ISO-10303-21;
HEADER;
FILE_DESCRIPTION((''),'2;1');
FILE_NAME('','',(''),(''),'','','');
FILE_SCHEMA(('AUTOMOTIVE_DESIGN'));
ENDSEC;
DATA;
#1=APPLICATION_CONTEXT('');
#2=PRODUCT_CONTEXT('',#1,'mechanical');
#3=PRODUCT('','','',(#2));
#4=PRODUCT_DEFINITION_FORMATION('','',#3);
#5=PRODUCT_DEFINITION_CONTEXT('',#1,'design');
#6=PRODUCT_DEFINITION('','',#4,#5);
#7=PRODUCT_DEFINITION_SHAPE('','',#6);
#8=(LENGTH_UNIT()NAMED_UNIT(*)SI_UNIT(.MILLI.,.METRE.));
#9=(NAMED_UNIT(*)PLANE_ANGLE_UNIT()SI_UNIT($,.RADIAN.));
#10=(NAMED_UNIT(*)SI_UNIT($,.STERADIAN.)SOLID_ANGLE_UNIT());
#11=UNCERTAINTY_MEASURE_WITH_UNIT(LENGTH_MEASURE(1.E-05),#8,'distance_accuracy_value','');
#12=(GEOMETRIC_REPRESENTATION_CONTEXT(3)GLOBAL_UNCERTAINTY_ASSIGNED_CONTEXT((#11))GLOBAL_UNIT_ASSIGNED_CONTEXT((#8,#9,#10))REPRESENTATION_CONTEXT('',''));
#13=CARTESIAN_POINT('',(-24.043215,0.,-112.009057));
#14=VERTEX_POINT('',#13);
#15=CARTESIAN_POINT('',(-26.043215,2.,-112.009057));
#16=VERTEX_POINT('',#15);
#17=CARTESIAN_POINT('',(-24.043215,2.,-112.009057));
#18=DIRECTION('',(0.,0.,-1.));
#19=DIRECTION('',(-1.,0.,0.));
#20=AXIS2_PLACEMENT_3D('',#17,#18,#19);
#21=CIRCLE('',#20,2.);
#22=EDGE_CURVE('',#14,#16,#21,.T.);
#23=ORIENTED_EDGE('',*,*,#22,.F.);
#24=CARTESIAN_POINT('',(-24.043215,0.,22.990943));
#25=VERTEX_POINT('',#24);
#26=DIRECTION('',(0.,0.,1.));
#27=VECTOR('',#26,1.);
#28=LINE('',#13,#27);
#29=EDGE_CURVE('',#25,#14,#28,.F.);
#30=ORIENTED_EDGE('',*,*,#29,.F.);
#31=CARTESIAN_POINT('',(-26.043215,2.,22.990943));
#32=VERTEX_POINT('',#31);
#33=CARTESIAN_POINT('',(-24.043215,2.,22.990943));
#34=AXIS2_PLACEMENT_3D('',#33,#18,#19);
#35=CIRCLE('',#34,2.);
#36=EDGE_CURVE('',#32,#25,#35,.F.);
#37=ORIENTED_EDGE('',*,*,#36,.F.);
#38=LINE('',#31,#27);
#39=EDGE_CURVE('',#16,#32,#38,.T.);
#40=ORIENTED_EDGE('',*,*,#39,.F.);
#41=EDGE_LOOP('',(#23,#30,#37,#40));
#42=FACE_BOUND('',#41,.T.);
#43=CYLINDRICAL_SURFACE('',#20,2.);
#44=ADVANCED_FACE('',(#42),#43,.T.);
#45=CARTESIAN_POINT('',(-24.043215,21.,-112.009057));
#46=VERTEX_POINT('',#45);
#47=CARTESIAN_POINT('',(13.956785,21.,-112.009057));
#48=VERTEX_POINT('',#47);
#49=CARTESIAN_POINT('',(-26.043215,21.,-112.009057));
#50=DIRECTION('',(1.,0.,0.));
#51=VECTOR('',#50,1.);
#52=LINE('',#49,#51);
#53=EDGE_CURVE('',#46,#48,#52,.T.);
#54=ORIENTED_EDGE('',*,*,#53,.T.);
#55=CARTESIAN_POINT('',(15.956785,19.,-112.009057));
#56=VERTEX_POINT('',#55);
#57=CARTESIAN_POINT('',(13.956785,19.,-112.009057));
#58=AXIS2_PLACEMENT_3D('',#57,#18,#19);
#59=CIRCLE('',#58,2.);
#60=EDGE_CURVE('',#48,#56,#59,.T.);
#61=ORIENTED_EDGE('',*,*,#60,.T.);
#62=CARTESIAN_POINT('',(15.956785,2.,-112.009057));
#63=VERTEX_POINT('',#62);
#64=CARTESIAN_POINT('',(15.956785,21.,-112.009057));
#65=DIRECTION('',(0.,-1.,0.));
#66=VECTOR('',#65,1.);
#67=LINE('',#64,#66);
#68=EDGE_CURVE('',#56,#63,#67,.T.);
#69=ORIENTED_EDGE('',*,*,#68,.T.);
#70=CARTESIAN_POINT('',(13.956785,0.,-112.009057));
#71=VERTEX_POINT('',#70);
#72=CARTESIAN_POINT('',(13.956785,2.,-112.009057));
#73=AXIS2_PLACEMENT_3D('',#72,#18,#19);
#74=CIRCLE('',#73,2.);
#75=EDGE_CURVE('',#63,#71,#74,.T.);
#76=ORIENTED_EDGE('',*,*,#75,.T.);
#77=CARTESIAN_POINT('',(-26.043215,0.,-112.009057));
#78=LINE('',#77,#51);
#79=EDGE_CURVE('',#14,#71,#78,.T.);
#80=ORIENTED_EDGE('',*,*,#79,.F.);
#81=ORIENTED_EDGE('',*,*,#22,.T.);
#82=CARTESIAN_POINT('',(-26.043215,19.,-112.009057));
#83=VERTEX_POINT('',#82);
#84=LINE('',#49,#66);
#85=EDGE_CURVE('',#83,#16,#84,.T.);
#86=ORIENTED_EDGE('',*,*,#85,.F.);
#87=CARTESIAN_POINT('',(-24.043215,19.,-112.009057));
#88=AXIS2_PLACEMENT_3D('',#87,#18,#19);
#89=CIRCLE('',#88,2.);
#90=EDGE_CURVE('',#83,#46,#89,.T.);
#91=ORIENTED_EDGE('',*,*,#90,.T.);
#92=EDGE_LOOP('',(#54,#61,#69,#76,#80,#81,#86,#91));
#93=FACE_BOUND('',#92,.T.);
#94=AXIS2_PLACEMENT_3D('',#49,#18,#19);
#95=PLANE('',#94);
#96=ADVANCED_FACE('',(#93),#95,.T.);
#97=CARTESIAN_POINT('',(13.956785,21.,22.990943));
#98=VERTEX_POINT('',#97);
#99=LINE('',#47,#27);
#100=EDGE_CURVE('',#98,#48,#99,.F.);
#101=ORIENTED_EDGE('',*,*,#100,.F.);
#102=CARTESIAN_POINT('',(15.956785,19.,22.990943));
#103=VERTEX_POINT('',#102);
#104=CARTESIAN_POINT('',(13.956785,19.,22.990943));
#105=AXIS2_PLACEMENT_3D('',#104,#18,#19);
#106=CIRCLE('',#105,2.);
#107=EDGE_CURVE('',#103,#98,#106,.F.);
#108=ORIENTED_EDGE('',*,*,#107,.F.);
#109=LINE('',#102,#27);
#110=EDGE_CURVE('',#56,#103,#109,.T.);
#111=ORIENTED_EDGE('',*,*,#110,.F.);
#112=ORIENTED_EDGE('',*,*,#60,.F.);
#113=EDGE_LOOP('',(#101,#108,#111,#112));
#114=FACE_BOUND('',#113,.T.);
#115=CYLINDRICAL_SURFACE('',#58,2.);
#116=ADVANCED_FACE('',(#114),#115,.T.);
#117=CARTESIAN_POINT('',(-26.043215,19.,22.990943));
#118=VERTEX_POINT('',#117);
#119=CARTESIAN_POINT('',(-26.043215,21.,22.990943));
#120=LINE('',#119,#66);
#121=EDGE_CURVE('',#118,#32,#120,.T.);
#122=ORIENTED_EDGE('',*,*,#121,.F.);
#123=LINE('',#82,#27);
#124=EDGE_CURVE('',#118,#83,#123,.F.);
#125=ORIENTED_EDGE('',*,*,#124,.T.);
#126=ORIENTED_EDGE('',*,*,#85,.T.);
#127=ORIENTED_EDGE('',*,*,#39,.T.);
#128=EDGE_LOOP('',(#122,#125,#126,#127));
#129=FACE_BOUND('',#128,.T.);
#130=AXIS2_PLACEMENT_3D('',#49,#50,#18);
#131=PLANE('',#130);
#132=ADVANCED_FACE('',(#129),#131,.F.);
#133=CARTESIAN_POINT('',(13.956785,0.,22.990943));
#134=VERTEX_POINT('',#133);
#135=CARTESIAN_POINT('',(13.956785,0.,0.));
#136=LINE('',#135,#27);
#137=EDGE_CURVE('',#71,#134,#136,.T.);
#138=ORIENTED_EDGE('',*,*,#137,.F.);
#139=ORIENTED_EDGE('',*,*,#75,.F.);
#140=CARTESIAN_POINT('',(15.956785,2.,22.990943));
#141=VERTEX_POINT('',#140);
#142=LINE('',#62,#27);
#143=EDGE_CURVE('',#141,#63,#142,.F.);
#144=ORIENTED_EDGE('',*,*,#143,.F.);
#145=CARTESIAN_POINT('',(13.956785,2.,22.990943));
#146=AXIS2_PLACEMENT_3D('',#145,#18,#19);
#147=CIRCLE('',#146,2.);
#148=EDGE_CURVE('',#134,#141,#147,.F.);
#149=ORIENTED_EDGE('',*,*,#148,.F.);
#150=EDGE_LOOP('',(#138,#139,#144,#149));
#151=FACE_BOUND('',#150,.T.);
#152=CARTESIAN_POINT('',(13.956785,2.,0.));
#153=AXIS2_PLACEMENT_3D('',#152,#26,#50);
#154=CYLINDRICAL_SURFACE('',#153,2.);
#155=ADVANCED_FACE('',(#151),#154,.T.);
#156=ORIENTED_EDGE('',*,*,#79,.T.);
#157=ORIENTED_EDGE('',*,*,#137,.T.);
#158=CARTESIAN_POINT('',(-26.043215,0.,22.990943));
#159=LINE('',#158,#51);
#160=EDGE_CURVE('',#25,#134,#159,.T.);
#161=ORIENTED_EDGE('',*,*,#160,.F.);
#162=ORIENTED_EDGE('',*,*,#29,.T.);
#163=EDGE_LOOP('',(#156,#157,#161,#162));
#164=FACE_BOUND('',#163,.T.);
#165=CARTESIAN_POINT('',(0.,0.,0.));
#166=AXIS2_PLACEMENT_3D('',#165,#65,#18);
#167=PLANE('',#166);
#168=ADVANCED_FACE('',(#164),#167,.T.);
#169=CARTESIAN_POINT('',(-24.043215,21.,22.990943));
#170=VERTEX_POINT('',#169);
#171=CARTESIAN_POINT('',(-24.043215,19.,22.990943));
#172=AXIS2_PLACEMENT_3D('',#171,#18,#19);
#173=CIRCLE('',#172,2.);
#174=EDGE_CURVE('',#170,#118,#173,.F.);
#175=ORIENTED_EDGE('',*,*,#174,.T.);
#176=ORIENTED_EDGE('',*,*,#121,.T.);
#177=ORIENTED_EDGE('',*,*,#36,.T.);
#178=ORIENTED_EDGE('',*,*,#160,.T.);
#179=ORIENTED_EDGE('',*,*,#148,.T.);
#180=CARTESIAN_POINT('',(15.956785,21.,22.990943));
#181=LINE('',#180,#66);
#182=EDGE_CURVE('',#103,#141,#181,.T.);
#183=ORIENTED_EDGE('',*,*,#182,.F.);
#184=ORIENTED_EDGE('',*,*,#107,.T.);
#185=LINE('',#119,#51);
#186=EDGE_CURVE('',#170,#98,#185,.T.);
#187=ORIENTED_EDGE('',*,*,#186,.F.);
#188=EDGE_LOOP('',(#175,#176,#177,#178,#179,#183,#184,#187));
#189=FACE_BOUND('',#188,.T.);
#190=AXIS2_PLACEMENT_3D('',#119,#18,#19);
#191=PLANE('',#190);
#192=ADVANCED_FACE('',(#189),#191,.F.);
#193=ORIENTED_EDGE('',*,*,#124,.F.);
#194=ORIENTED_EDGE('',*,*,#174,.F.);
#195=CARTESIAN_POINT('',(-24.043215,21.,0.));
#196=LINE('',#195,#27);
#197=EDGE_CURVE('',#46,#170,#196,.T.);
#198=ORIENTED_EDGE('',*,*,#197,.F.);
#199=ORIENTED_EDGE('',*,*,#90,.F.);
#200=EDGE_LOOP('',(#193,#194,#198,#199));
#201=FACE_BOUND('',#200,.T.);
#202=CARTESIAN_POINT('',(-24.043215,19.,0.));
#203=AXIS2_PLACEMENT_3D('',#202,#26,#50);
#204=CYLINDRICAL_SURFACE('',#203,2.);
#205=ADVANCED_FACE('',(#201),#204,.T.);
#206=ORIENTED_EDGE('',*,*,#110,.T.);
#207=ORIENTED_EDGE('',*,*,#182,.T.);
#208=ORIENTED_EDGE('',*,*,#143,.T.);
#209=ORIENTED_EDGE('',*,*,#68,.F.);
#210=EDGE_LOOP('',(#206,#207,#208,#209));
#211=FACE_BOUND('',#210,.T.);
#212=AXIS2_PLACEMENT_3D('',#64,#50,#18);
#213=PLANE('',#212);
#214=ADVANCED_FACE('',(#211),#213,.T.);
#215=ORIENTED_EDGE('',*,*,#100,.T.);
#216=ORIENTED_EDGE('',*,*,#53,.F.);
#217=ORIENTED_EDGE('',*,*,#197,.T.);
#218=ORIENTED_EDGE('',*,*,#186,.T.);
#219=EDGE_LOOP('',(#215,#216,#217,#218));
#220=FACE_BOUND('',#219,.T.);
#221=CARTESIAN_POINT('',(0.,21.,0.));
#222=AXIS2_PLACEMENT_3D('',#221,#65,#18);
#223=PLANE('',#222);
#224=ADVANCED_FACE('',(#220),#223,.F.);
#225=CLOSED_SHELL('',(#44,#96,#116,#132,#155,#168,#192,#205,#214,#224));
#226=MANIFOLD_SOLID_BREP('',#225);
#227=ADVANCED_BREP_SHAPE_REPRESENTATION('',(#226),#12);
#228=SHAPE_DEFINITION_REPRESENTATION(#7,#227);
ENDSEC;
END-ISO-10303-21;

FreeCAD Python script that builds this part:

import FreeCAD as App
import Part
import Sketcher


def edges_at(feature, points):
    """Names of the edges that pass closest to the given points."""
    edges = feature.Shape.Edges
    near = lambda p: min(range(len(edges)), key=lambda i: edges[i].distToShape(Part.Vertex(*p))[0])
    return sorted({f"Edge{near(p) + 1}" for p in points})

doc = App.newDocument("Part")
body = doc.addObject("PartDesign::Body", "Body")

# Sketch on XZ plane
sketch1 = body.newObject("Sketcher::SketchObject", "Sketch")
sketch1.AttachmentSupport = (doc.getObject("XZ_Plane"), [""])
sketch1.MapMode = "FlatFace"
sketch1.addGeometry([
    Part.LineSegment(App.Vector(-26, -112, 0), App.Vector(-26, 23, 0)),
    Part.LineSegment(App.Vector(-26, 23, 0), App.Vector(16, 23, 0)),
    Part.LineSegment(App.Vector(16, 23, 0), App.Vector(16, -112, 0)),
    Part.LineSegment(App.Vector(16, -112, 0), App.Vector(-26, -112, 0)),
], False)
sketch1.addConstraint([
    Sketcher.Constraint("Coincident", 0, 2, 1, 1),
    Sketcher.Constraint("Coincident", 1, 2, 2, 1),
    Sketcher.Constraint("Coincident", 2, 2, 3, 1),
    Sketcher.Constraint("Coincident", 3, 2, 0, 1),
    Sketcher.Constraint("Vertical", 0),
    Sketcher.Constraint("Horizontal", 1),
    Sketcher.Constraint("Vertical", 2),
    Sketcher.Constraint("Horizontal", 3),
    Sketcher.Constraint("DistanceX", 1, 1, 1, 2, 42.0),
    Sketcher.Constraint("DistanceY", 0, 1, 0, 2, 135.0),
    Sketcher.Constraint("DistanceX", 0, 2, -1, 1, 26.043215),
    Sketcher.Constraint("DistanceY", -1, 1, 0, 2, 22.990943),
])
pad1 = body.newObject("PartDesign::Pad", "Pad")
pad1.Profile = sketch1
pad1.Length = 21
pad1.Reversed = True
doc.recompute()

fillet = body.newObject("PartDesign::Fillet", "Fillet")
fillet.Base = (pad1, edges_at(pad1, [
    (-26.043, 21, -44.509),
    (-26.043, 0, -44.509),
    (15.957, 0, -44.509),
    (15.957, 21, -44.509),
]))
fillet.Radius = 2

doc.recompute()
